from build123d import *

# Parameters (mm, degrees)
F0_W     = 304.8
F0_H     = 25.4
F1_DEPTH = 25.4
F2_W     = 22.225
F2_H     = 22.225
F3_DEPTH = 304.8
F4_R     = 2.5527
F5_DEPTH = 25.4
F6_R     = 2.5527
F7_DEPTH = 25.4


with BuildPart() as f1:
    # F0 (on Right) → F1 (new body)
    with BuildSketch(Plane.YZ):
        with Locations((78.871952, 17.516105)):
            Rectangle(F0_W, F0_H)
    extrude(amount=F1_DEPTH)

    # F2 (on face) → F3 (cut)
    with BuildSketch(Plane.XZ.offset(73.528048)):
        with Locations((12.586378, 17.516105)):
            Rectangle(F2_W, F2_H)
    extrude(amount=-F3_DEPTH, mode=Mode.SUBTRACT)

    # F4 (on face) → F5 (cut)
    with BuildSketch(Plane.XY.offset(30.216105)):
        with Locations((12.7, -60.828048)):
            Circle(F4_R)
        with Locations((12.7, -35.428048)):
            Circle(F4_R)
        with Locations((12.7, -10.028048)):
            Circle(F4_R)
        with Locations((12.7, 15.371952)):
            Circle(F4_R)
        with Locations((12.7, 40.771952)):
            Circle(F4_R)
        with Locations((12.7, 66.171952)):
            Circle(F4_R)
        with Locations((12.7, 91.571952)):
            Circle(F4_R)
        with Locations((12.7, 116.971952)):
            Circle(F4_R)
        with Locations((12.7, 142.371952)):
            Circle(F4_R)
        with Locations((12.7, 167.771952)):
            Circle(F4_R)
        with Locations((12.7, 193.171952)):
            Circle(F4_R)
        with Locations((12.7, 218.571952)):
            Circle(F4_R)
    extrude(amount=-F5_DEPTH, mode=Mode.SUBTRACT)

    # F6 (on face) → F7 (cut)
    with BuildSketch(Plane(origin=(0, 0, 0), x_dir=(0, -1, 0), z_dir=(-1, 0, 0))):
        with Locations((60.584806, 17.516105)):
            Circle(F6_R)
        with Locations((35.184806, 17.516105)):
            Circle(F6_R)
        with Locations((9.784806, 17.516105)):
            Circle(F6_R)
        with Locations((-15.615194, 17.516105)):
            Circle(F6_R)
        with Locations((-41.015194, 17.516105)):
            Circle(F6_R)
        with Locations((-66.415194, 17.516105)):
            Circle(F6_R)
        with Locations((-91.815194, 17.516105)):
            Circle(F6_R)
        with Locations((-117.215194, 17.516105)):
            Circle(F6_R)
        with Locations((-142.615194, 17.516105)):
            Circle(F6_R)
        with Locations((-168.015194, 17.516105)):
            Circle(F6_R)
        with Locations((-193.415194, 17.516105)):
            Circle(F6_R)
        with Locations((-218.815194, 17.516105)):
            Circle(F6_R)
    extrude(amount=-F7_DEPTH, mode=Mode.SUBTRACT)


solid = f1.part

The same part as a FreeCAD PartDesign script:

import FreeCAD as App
import Part
import Sketcher
Q = App.Units.Quantity


def add_polygon(sketch, points):
    """Adds a closed chain of lines whose ends are joined by coincident constraints."""
    first, n = sketch.GeometryCount, len(points)
    for a, b in zip(points, points[1:] + points[:1]):
        sketch.addGeometry(Part.LineSegment(App.Vector(*a, 0), App.Vector(*b, 0)), False)
    for i in range(n):
        sketch.addConstraint(Sketcher.Constraint("Coincident", first + i, 2, first + (i + 1) % n, 1))

doc = App.newDocument("Part")
body = doc.addObject("PartDesign::Body", "Body")

# Sketch on YZ plane
sketch1 = body.newObject("Sketcher::SketchObject", "Sketch")
sketch1.AttachmentSupport = (doc.getObject("YZ_Plane"), [""])
sketch1.MapMode = "FlatFace"
add_polygon(sketch1, [(-74, 30), (-74, 5), (231, 5), (231, 30)])  # lines 0-3
sketch1.addConstraint(Sketcher.Constraint("Vertical", 0))
sketch1.addConstraint(Sketcher.Constraint("Horizontal", 1))
sketch1.addConstraint(Sketcher.Constraint("Vertical", 2))
sketch1.addConstraint(Sketcher.Constraint("Horizontal", 3))
sketch1.addConstraint(Sketcher.Constraint("DistanceX", 1, 1, 1, 2, Q("12 in")))
sketch1.addConstraint(Sketcher.Constraint("DistanceY", 0, 2, 0, 1, Q("1 in")))
sketch1.addConstraint(Sketcher.Constraint("DistanceX", 0, 2, -1, 1, 73.528048))
sketch1.addConstraint(Sketcher.Constraint("DistanceY", -1, 1, 0, 2, 4.816105))
pad1 = body.newObject("PartDesign::Pad", "Pad")
pad1.Profile = sketch1
pad1.Length = Q("1 in")

# Sketch on XZ plane
sketch2 = body.newObject("Sketcher::SketchObject", "Sketch001")
sketch2.AttachmentSupport = (doc.getObject("XZ_Plane"), [""])
sketch2.MapMode = "FlatFace"
sketch2.AttachmentOffset = App.Placement(App.Vector(0, 0, 73.528048), App.Rotation())
add_polygon(sketch2, [(1, 29), (1, 6), (24, 6), (24, 29)])  # lines 0-3
sketch2.addConstraint(Sketcher.Constraint("Vertical", 0))
sketch2.addConstraint(Sketcher.Constraint("Horizontal", 1))
sketch2.addConstraint(Sketcher.Constraint("Vertical", 2))
sketch2.addConstraint(Sketcher.Constraint("Horizontal", 3))
sketch2.addConstraint(Sketcher.Constraint("Equal", 3, 0))
sketch2.addConstraint(Sketcher.Constraint("DistanceX", 1, 1, 1, 2, Q("0.875 in")))
sketch2.addConstraint(Sketcher.Constraint("DistanceX", -1, 1, 1, 2, 23.698878))
sketch2.addConstraint(Sketcher.Constraint("DistanceY", -1, 1, 0, 2, 6.403605))
pocket1 = body.newObject("PartDesign::Pocket", "Pocket")
pocket1.Profile = sketch2
pocket1.Length = Q("12 in")

# Sketch on XY plane
sketch3 = body.newObject("Sketcher::SketchObject", "Sketch002")
sketch3.AttachmentSupport = (doc.getObject("XY_Plane"), [""])
sketch3.MapMode = "FlatFace"
sketch3.AttachmentOffset = App.Placement(App.Vector(0, 0, 30.216105), App.Rotation())
sketch3.addGeometry(Part.Circle(App.Vector(12.7, -60.8, 0), App.Vector(0, 0, 1), 2.6), False)
sketch3.addGeometry(Part.Circle(App.Vector(12.7, -35.4, 0), App.Vector(0, 0, 1), 2.6), False)
sketch3.addGeometry(Part.Circle(App.Vector(12.7, -10, 0), App.Vector(0, 0, 1), 2.6), False)
sketch3.addGeometry(Part.Circle(App.Vector(12.7, 15.4, 0), App.Vector(0, 0, 1), 2.6), False)
sketch3.addGeometry(Part.Circle(App.Vector(12.7, 40.8, 0), App.Vector(0, 0, 1), 2.6), False)
sketch3.addGeometry(Part.Circle(App.Vector(12.7, 66.2, 0), App.Vector(0, 0, 1), 2.6), False)
sketch3.addGeometry(Part.Circle(App.Vector(12.7, 91.6, 0), App.Vector(0, 0, 1), 2.6), False)
sketch3.addGeometry(Part.Circle(App.Vector(12.7, 117, 0), App.Vector(0, 0, 1), 2.6), False)
sketch3.addGeometry(Part.Circle(App.Vector(12.7, 142.4, 0), App.Vector(0, 0, 1), 2.6), False)
sketch3.addGeometry(Part.Circle(App.Vector(12.7, 167.8, 0), App.Vector(0, 0, 1), 2.6), False)
sketch3.addGeometry(Part.Circle(App.Vector(12.7, 193.2, 0), App.Vector(0, 0, 1), 2.6), False)
sketch3.addGeometry(Part.Circle(App.Vector(12.7, 218.6, 0), App.Vector(0, 0, 1), 2.6), False)
sketch3.addConstraint(Sketcher.Constraint("Equal", 0, 1))
sketch3.addConstraint(Sketcher.Constraint("Equal", 1, 2))
sketch3.addConstraint(Sketcher.Constraint("Equal", 2, 3))
sketch3.addConstraint(Sketcher.Constraint("Equal", 3, 4))
sketch3.addConstraint(Sketcher.Constraint("Equal", 4, 5))
sketch3.addConstraint(Sketcher.Constraint("Equal", 5, 6))
sketch3.addConstraint(Sketcher.Constraint("Equal", 6, 7))
sketch3.addConstraint(Sketcher.Constraint("Equal", 7, 8))
sketch3.addConstraint(Sketcher.Constraint("Equal", 8, 9))
sketch3.addConstraint(Sketcher.Constraint("Equal", 9, 10))
sketch3.addConstraint(Sketcher.Constraint("Equal", 10, 11))
sketch3.addConstraint(Sketcher.Constraint("Vertical", 0, 3, 1, 3))
sketch3.addConstraint(Sketcher.Constraint("Vertical", 1, 3, 2, 3))
sketch3.addConstraint(Sketcher.Constraint("Vertical", 2, 3, 3, 3))
sketch3.addConstraint(Sketcher.Constraint("Vertical", 3, 3, 4, 3))
sketch3.addConstraint(Sketcher.Constraint("Vertical", 4, 3, 5, 3))
sketch3.addConstraint(Sketcher.Constraint("Vertical", 5, 3, 6, 3))
sketch3.addConstraint(Sketcher.Constraint("Vertical", 6, 3, 7, 3))
sketch3.addConstraint(Sketcher.Constraint("Vertical", 7, 3, 8, 3))
sketch3.addConstraint(Sketcher.Constraint("Vertical", 8, 3, 9, 3))
sketch3.addConstraint(Sketcher.Constraint("Vertical", 9, 3, 10, 3))
sketch3.addConstraint(Sketcher.Constraint("Vertical", 10, 3, 11, 3))
sketch3.addConstraint(Sketcher.Constraint("Diameter", 0, Q("0.201 in")))
sketch3.addConstraint(Sketcher.Constraint("DistanceY", 0, 3, 1, 3, Q("1 in")))
sketch3.addConstraint(Sketcher.Constraint("DistanceY", 1, 3, 2, 3, Q("1 in")))
sketch3.addConstraint(Sketcher.Constraint("DistanceY", 2, 3, 3, 3, Q("1 in")))
sketch3.addConstraint(Sketcher.Constraint("DistanceY", 3, 3, 4, 3, Q("1 in")))
sketch3.addConstraint(Sketcher.Constraint("DistanceY", 4, 3, 5, 3, Q("1 in")))
sketch3.addConstraint(Sketcher.Constraint("DistanceY", 5, 3, 6, 3, Q("1 in")))
sketch3.addConstraint(Sketcher.Constraint("DistanceY", 6, 3, 7, 3, Q("1 in")))
sketch3.addConstraint(Sketcher.Constraint("DistanceY", 7, 3, 8, 3, Q("1 in")))
sketch3.addConstraint(Sketcher.Constraint("DistanceY", 8, 3, 9, 3, Q("1 in")))
sketch3.addConstraint(Sketcher.Constraint("DistanceY", 9, 3, 10, 3, Q("1 in")))
sketch3.addConstraint(Sketcher.Constraint("DistanceY", 10, 3, 11, 3, Q("1 in")))
sketch3.addConstraint(Sketcher.Constraint("DistanceX", -1, 1, 0, 3, Q("0.5 in")))
sketch3.addConstraint(Sketcher.Constraint("DistanceY", 0, 3, -1, 1, 60.828048))
pocket2 = body.newObject("PartDesign::Pocket", "Pocket001")
pocket2.Profile = sketch3
pocket2.Length = Q("1 in")

# Sketch on YZ plane
sketch4 = body.newObject("Sketcher::SketchObject", "Sketch003")
sketch4.AttachmentSupport = (doc.getObject("YZ_Plane"), [""])
sketch4.MapMode = "FlatFace"
sketch4.addGeometry(Part.Circle(App.Vector(-60.6, 17.5, 0), App.Vector(0, 0, 1), 2.6), False)
sketch4.addGeometry(Part.Circle(App.Vector(-35.2, 17.5, 0), App.Vector(0, 0, 1), 2.6), False)
sketch4.addGeometry(Part.Circle(App.Vector(-9.8, 17.5, 0), App.Vector(0, 0, 1), 2.6), False)
sketch4.addGeometry(Part.Circle(App.Vector(15.6, 17.5, 0), App.Vector(0, 0, 1), 2.6), False)
sketch4.addGeometry(Part.Circle(App.Vector(41, 17.5, 0), App.Vector(0, 0, 1), 2.6), False)
sketch4.addGeometry(Part.Circle(App.Vector(66.4, 17.5, 0), App.Vector(0, 0, 1), 2.6), False)
sketch4.addGeometry(Part.Circle(App.Vector(91.8, 17.5, 0), App.Vector(0, 0, 1), 2.6), False)
sketch4.addGeometry(Part.Circle(App.Vector(117.2, 17.5, 0), App.Vector(0, 0, 1), 2.6), False)
sketch4.addGeometry(Part.Circle(App.Vector(142.6, 17.5, 0), App.Vector(0, 0, 1), 2.6), False)
sketch4.addGeometry(Part.Circle(App.Vector(168, 17.5, 0), App.Vector(0, 0, 1), 2.6), False)
sketch4.addGeometry(Part.Circle(App.Vector(193.4, 17.5, 0), App.Vector(0, 0, 1), 2.6), False)
sketch4.addGeometry(Part.Circle(App.Vector(218.8, 17.5, 0), App.Vector(0, 0, 1), 2.6), False)
sketch4.addConstraint(Sketcher.Constraint("Equal", 0, 1))
sketch4.addConstraint(Sketcher.Constraint("Equal", 1, 2))
sketch4.addConstraint(Sketcher.Constraint("Equal", 2, 3))
sketch4.addConstraint(Sketcher.Constraint("Equal", 3, 4))
sketch4.addConstraint(Sketcher.Constraint("Equal", 4, 5))
sketch4.addConstraint(Sketcher.Constraint("Equal", 5, 6))
sketch4.addConstraint(Sketcher.Constraint("Equal", 6, 7))
sketch4.addConstraint(Sketcher.Constraint("Equal", 7, 8))
sketch4.addConstraint(Sketcher.Constraint("Equal", 8, 9))
sketch4.addConstraint(Sketcher.Constraint("Equal", 9, 10))
sketch4.addConstraint(Sketcher.Constraint("Equal", 10, 11))
sketch4.addConstraint(Sketcher.Constraint("Horizontal", 0, 3, 1, 3))
sketch4.addConstraint(Sketcher.Constraint("Horizontal", 1, 3, 2, 3))
sketch4.addConstraint(Sketcher.Constraint("Horizontal", 2, 3, 3, 3))
sketch4.addConstraint(Sketcher.Constraint("Horizontal", 3, 3, 4, 3))
sketch4.addConstraint(Sketcher.Constraint("Horizontal", 4, 3, 5, 3))
sketch4.addConstraint(Sketcher.Constraint("Horizontal", 5, 3, 6, 3))
sketch4.addConstraint(Sketcher.Constraint("Horizontal", 6, 3, 7, 3))
sketch4.addConstraint(Sketcher.Constraint("Horizontal", 7, 3, 8, 3))
sketch4.addConstraint(Sketcher.Constraint("Horizontal", 8, 3, 9, 3))
sketch4.addConstraint(Sketcher.Constraint("Horizontal", 9, 3, 10, 3))
sketch4.addConstraint(Sketcher.Constraint("Horizontal", 10, 3, 11, 3))
sketch4.addConstraint(Sketcher.Constraint("Diameter", 0, Q("0.201 in")))
sketch4.addConstraint(Sketcher.Constraint("DistanceX", 0, 3, 1, 3, Q("1 in")))
sketch4.addConstraint(Sketcher.Constraint("DistanceX", 1, 3, 2, 3, Q("1 in")))
sketch4.addConstraint(Sketcher.Constraint("DistanceX", 2, 3, 3, 3, Q("1 in")))
sketch4.addConstraint(Sketcher.Constraint("DistanceX", 3, 3, 4, 3, Q("1 in")))
sketch4.addConstraint(Sketcher.Constraint("DistanceX", 4, 3, 5, 3, Q("1 in")))
sketch4.addConstraint(Sketcher.Constraint("DistanceX", 5, 3, 6, 3, Q("1 in")))
sketch4.addConstraint(Sketcher.Constraint("DistanceX", 6, 3, 7, 3, Q("1 in")))
sketch4.addConstraint(Sketcher.Constraint("DistanceX", 7, 3, 8, 3, Q("1 in")))
sketch4.addConstraint(Sketcher.Constraint("DistanceX", 8, 3, 9, 3, Q("1 in")))
sketch4.addConstraint(Sketcher.Constraint("DistanceX", 9, 3, 10, 3, Q("1 in")))
sketch4.addConstraint(Sketcher.Constraint("DistanceX", 10, 3, 11, 3, Q("1 in")))
sketch4.addConstraint(Sketcher.Constraint("DistanceX", 0, 3, -1, 1, 60.584806))
sketch4.addConstraint(Sketcher.Constraint("DistanceY", -1, 1, 0, 3, 17.516105))
pocket3 = body.newObject("PartDesign::Pocket", "Pocket002")
pocket3.Profile = sketch4
pocket3.Length = Q("1 in")
pocket3.Reversed = True

doc.recompute()
